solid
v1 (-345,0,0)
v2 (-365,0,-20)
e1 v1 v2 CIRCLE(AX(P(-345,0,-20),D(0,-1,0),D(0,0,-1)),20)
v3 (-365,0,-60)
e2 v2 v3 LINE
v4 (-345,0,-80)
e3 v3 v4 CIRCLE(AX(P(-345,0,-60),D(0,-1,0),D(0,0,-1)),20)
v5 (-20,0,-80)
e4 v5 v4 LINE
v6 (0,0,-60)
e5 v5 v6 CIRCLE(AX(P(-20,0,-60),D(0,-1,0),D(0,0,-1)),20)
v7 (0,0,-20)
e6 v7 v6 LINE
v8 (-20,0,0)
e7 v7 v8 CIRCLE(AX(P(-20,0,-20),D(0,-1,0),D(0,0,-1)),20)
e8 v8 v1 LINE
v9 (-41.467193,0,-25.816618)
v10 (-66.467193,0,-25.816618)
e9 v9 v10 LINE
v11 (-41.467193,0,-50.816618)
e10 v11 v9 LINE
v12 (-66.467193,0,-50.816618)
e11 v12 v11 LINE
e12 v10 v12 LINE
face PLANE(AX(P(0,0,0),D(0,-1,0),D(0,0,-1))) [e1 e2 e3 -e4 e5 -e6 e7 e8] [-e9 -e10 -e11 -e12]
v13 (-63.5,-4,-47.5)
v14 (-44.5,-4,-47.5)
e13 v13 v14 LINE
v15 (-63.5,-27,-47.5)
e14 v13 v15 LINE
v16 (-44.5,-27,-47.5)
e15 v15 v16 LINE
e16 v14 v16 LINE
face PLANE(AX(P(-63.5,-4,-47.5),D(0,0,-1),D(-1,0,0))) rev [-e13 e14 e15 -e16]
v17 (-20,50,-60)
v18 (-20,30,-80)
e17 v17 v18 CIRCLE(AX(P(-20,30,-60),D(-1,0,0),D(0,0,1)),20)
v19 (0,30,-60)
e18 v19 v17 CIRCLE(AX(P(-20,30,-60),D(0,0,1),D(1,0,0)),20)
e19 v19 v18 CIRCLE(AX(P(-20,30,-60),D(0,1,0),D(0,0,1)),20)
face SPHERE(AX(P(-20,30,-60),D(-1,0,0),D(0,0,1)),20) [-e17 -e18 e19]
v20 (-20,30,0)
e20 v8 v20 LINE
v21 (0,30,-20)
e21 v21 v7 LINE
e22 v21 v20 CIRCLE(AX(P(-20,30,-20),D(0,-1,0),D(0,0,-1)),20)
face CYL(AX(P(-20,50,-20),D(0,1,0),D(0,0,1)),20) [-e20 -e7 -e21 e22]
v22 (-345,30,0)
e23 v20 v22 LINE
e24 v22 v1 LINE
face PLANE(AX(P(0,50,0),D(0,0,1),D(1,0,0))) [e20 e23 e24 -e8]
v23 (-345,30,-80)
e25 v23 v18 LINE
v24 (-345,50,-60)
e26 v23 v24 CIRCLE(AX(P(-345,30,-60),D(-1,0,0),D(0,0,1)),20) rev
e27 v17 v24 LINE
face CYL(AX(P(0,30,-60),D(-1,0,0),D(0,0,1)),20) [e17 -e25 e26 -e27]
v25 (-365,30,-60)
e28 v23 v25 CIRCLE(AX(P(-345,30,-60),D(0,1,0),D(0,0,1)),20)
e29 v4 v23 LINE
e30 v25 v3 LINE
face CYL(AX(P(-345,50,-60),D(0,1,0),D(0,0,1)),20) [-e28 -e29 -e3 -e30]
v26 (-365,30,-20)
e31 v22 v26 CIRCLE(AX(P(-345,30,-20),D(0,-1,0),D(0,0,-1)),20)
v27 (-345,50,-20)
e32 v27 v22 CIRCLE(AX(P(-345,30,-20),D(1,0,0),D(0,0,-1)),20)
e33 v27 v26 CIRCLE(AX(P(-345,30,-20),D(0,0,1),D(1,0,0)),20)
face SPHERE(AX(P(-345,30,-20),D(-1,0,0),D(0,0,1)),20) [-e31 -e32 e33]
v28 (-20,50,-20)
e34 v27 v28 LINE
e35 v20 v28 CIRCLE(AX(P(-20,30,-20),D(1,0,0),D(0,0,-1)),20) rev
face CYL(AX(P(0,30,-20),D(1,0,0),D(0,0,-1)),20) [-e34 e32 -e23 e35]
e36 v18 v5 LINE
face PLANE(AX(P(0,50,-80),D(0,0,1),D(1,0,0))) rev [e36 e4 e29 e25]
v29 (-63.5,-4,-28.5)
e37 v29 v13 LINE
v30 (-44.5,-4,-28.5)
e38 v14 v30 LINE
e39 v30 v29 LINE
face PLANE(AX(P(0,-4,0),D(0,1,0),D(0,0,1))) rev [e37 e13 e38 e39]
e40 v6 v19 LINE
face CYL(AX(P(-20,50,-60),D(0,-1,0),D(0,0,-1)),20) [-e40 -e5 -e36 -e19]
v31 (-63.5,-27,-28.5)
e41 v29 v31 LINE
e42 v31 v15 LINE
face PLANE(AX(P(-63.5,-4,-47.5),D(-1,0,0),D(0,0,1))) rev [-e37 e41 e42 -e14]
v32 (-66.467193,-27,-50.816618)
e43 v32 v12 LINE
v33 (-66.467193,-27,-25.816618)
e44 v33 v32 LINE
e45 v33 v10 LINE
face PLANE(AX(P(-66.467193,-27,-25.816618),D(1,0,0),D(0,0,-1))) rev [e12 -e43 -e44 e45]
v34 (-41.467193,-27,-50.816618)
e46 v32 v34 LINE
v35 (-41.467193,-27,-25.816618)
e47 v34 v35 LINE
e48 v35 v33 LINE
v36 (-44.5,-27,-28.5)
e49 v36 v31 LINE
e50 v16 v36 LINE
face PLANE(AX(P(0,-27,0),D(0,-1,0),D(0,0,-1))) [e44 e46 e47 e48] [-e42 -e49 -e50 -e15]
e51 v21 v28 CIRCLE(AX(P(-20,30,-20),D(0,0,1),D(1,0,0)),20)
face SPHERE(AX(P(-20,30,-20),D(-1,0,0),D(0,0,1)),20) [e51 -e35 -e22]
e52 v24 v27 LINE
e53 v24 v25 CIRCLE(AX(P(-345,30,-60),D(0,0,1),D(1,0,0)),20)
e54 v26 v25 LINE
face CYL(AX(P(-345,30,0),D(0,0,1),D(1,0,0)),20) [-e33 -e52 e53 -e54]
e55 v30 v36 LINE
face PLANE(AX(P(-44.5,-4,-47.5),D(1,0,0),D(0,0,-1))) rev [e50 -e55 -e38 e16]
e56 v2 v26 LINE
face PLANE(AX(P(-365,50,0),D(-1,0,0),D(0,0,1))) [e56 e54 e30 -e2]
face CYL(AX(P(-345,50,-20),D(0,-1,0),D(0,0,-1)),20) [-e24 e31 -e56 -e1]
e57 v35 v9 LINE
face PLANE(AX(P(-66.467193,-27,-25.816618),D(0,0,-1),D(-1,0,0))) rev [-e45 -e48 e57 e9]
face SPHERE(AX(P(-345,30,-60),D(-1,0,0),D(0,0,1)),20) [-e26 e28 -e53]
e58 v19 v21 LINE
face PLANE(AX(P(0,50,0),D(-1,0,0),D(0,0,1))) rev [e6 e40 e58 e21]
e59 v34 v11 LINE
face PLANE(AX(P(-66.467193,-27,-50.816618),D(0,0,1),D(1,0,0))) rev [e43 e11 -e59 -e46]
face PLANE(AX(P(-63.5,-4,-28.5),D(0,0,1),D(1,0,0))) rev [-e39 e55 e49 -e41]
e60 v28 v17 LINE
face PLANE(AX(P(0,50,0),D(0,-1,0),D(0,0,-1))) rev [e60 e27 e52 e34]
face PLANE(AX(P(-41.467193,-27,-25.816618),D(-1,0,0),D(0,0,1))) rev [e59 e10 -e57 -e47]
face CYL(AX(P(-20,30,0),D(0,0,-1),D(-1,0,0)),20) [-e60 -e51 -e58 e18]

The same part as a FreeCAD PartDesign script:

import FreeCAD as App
import Part
import Sketcher

V = App.Vector
Q = App.Units.Quantity


def edges_at(feature, points):
    """Names of the edges that pass closest to the given points."""
    edges = feature.Shape.Edges
    near = lambda p: min(range(len(edges)), key=lambda i: edges[i].distToShape(Part.Vertex(*p))[0])
    return sorted({f"Edge{near(p) + 1}" for p in points})

doc = App.newDocument("Part")
body = doc.addObject("PartDesign::Body", "Body")

# Sketch on XZ plane
sketch1 = body.newObject("Sketcher::SketchObject", "Sketch")
sketch1.AttachmentSupport = (doc.getObject("XZ_Plane"), [""])
sketch1.MapMode = "FlatFace"
sketch1.addGeometry([
    Part.LineSegment(V(-365, -80, 0), V(-365, 0, 0)),
    Part.LineSegment(V(-365, 0, 0), V(0, 0, 0)),
    Part.LineSegment(V(0, 0, 0), V(0, -80, 0)),
    Part.LineSegment(V(0, -80, 0), V(-365, -80, 0)),
], False)
sketch1.addConstraint([
    Sketcher.Constraint("Coincident", 0, 2, 1, 1),
    Sketcher.Constraint("Coincident", 1, 2, 2, 1),
    Sketcher.Constraint("Coincident", 2, 2, 3, 1),
    Sketcher.Constraint("Coincident", 3, 2, 0, 1),
    Sketcher.Constraint("Vertical", 0),
    Sketcher.Constraint("Horizontal", 1),
    Sketcher.Constraint("Vertical", 2),
    Sketcher.Constraint("Horizontal", 3),
    Sketcher.Constraint("Coincident", 1, 2, -1, 1),
    Sketcher.Constraint("DistanceX", 1, 1, 1, 2, Q("365 mm")),
    Sketcher.Constraint("DistanceY", 0, 1, 0, 2, Q("80 mm")),
])
pad1 = body.newObject("PartDesign::Pad", "Pad")
pad1.Profile = sketch1
pad1.Length = 50
pad1.Reversed = True
doc.recompute()

fillet = body.newObject("PartDesign::Fillet", "Fillet")
fillet.Base = (pad1, edges_at(pad1, [(-182.5, 50, -80)]))
fillet.Radius = 20
doc.recompute()

fillet2 = body.newObject("PartDesign::Fillet", "Fillet001")
fillet2.Base = (fillet, edges_at(fillet, [(-182.5, 50, 0)]))
fillet2.Radius = 20
doc.recompute()

fillet3 = body.newObject("PartDesign::Fillet", "Fillet002")
fillet3.Base = (fillet2, edges_at(fillet2, [
    (0, 15, -80),
    (0, 44.142, -74.142),
    (0, 15, 0),
    (0, 50, -40),
    (0, 44.142, -5.858),
]))
fillet3.Radius = 20
doc.recompute()

fillet4 = body.newObject("PartDesign::Fillet", "Fillet003")
fillet4.Base = (fillet3, edges_at(fillet3, [
    (-365, 15, -80),
    (-365, 44.142, -74.142),
    (-365, 15, 0),
    (-365, 50, -40),
    (-365, 44.142, -5.858),
]))
fillet4.Radius = 20

# Sketch on XZ plane
sketch2 = body.newObject("Sketcher::SketchObject", "Sketch001")
sketch2.AttachmentSupport = (doc.getObject("XZ_Plane"), [""])
sketch2.MapMode = "FlatFace"
sketch2.addGeometry([
    Part.LineSegment(V(-66.467193, -25.816618, 0), V(-66.467193, -50.816618, 0)),
    Part.LineSegment(V(-66.467193, -50.816618, 0), V(-41.467193, -50.816618, 0)),
    Part.LineSegment(V(-41.467193, -50.816618, 0), V(-41.467193, -25.816618, 0)),
    Part.LineSegment(V(-41.467193, -25.816618, 0), V(-66.467193, -25.816618, 0)),
], False)
sketch2.addConstraint([
    Sketcher.Constraint("Coincident", 0, 2, 1, 1),
    Sketcher.Constraint("Coincident", 1, 2, 2, 1),
    Sketcher.Constraint("Coincident", 2, 2, 3, 1),
    Sketcher.Constraint("Coincident", 3, 2, 0, 1),
    Sketcher.Constraint("Vertical", 0),
    Sketcher.Constraint("Horizontal", 1),
    Sketcher.Constraint("Vertical", 2),
    Sketcher.Constraint("Horizontal", 3),
    Sketcher.Constraint("Equal", 3, 0),
    Sketcher.Constraint("DistanceX", 1, 1, 1, 2, Q("25 mm")),
    Sketcher.Constraint("DistanceX", 0, 2, -1, 1, Q("66.467193 mm")),
    Sketcher.Constraint("DistanceY", 0, 2, -1, 1, Q("50.816618 mm")),
])
pad2 = body.newObject("PartDesign::Pad", "Pad001")
pad2.Profile = sketch2
pad2.Length = 27

# Sketch on XZ plane
sketch3 = body.newObject("Sketcher::SketchObject", "Sketch002")
sketch3.AttachmentSupport = (doc.getObject("XZ_Plane"), [""])
sketch3.MapMode = "FlatFace"
sketch3.AttachmentOffset = App.Placement(V(0, 0, 27), App.Rotation())
sketch3.addGeometry([
    Part.LineSegment(V(-63.5, -28.5, 0), V(-63.5, -47.5, 0)),
    Part.LineSegment(V(-63.5, -47.5, 0), V(-44.5, -47.5, 0)),
    Part.LineSegment(V(-44.5, -47.5, 0), V(-44.5, -28.5, 0)),
    Part.LineSegment(V(-44.5, -28.5, 0), V(-63.5, -28.5, 0)),
], False)
sketch3.addConstraint([
    Sketcher.Constraint("Coincident", 0, 2, 1, 1),
    Sketcher.Constraint("Coincident", 1, 2, 2, 1),
    Sketcher.Constraint("Coincident", 2, 2, 3, 1),
    Sketcher.Constraint("Coincident", 3, 2, 0, 1),
    Sketcher.Constraint("Vertical", 0),
    Sketcher.Constraint("Horizontal", 1),
    Sketcher.Constraint("Vertical", 2),
    Sketcher.Constraint("Horizontal", 3),
    Sketcher.Constraint("Equal", 3, 0),
    Sketcher.Constraint("DistanceX", 1, 1, 1, 2, Q("19 mm")),
    Sketcher.Constraint("DistanceX", 0, 2, -1, 1, Q("63.5 mm")),
    Sketcher.Constraint("DistanceY", 0, 2, -1, 1, Q("47.5 mm")),
])
pocket1 = body.newObject("PartDesign::Pocket", "Pocket")
pocket1.Profile = sketch3
pocket1.Length = 23

doc.recompute()
